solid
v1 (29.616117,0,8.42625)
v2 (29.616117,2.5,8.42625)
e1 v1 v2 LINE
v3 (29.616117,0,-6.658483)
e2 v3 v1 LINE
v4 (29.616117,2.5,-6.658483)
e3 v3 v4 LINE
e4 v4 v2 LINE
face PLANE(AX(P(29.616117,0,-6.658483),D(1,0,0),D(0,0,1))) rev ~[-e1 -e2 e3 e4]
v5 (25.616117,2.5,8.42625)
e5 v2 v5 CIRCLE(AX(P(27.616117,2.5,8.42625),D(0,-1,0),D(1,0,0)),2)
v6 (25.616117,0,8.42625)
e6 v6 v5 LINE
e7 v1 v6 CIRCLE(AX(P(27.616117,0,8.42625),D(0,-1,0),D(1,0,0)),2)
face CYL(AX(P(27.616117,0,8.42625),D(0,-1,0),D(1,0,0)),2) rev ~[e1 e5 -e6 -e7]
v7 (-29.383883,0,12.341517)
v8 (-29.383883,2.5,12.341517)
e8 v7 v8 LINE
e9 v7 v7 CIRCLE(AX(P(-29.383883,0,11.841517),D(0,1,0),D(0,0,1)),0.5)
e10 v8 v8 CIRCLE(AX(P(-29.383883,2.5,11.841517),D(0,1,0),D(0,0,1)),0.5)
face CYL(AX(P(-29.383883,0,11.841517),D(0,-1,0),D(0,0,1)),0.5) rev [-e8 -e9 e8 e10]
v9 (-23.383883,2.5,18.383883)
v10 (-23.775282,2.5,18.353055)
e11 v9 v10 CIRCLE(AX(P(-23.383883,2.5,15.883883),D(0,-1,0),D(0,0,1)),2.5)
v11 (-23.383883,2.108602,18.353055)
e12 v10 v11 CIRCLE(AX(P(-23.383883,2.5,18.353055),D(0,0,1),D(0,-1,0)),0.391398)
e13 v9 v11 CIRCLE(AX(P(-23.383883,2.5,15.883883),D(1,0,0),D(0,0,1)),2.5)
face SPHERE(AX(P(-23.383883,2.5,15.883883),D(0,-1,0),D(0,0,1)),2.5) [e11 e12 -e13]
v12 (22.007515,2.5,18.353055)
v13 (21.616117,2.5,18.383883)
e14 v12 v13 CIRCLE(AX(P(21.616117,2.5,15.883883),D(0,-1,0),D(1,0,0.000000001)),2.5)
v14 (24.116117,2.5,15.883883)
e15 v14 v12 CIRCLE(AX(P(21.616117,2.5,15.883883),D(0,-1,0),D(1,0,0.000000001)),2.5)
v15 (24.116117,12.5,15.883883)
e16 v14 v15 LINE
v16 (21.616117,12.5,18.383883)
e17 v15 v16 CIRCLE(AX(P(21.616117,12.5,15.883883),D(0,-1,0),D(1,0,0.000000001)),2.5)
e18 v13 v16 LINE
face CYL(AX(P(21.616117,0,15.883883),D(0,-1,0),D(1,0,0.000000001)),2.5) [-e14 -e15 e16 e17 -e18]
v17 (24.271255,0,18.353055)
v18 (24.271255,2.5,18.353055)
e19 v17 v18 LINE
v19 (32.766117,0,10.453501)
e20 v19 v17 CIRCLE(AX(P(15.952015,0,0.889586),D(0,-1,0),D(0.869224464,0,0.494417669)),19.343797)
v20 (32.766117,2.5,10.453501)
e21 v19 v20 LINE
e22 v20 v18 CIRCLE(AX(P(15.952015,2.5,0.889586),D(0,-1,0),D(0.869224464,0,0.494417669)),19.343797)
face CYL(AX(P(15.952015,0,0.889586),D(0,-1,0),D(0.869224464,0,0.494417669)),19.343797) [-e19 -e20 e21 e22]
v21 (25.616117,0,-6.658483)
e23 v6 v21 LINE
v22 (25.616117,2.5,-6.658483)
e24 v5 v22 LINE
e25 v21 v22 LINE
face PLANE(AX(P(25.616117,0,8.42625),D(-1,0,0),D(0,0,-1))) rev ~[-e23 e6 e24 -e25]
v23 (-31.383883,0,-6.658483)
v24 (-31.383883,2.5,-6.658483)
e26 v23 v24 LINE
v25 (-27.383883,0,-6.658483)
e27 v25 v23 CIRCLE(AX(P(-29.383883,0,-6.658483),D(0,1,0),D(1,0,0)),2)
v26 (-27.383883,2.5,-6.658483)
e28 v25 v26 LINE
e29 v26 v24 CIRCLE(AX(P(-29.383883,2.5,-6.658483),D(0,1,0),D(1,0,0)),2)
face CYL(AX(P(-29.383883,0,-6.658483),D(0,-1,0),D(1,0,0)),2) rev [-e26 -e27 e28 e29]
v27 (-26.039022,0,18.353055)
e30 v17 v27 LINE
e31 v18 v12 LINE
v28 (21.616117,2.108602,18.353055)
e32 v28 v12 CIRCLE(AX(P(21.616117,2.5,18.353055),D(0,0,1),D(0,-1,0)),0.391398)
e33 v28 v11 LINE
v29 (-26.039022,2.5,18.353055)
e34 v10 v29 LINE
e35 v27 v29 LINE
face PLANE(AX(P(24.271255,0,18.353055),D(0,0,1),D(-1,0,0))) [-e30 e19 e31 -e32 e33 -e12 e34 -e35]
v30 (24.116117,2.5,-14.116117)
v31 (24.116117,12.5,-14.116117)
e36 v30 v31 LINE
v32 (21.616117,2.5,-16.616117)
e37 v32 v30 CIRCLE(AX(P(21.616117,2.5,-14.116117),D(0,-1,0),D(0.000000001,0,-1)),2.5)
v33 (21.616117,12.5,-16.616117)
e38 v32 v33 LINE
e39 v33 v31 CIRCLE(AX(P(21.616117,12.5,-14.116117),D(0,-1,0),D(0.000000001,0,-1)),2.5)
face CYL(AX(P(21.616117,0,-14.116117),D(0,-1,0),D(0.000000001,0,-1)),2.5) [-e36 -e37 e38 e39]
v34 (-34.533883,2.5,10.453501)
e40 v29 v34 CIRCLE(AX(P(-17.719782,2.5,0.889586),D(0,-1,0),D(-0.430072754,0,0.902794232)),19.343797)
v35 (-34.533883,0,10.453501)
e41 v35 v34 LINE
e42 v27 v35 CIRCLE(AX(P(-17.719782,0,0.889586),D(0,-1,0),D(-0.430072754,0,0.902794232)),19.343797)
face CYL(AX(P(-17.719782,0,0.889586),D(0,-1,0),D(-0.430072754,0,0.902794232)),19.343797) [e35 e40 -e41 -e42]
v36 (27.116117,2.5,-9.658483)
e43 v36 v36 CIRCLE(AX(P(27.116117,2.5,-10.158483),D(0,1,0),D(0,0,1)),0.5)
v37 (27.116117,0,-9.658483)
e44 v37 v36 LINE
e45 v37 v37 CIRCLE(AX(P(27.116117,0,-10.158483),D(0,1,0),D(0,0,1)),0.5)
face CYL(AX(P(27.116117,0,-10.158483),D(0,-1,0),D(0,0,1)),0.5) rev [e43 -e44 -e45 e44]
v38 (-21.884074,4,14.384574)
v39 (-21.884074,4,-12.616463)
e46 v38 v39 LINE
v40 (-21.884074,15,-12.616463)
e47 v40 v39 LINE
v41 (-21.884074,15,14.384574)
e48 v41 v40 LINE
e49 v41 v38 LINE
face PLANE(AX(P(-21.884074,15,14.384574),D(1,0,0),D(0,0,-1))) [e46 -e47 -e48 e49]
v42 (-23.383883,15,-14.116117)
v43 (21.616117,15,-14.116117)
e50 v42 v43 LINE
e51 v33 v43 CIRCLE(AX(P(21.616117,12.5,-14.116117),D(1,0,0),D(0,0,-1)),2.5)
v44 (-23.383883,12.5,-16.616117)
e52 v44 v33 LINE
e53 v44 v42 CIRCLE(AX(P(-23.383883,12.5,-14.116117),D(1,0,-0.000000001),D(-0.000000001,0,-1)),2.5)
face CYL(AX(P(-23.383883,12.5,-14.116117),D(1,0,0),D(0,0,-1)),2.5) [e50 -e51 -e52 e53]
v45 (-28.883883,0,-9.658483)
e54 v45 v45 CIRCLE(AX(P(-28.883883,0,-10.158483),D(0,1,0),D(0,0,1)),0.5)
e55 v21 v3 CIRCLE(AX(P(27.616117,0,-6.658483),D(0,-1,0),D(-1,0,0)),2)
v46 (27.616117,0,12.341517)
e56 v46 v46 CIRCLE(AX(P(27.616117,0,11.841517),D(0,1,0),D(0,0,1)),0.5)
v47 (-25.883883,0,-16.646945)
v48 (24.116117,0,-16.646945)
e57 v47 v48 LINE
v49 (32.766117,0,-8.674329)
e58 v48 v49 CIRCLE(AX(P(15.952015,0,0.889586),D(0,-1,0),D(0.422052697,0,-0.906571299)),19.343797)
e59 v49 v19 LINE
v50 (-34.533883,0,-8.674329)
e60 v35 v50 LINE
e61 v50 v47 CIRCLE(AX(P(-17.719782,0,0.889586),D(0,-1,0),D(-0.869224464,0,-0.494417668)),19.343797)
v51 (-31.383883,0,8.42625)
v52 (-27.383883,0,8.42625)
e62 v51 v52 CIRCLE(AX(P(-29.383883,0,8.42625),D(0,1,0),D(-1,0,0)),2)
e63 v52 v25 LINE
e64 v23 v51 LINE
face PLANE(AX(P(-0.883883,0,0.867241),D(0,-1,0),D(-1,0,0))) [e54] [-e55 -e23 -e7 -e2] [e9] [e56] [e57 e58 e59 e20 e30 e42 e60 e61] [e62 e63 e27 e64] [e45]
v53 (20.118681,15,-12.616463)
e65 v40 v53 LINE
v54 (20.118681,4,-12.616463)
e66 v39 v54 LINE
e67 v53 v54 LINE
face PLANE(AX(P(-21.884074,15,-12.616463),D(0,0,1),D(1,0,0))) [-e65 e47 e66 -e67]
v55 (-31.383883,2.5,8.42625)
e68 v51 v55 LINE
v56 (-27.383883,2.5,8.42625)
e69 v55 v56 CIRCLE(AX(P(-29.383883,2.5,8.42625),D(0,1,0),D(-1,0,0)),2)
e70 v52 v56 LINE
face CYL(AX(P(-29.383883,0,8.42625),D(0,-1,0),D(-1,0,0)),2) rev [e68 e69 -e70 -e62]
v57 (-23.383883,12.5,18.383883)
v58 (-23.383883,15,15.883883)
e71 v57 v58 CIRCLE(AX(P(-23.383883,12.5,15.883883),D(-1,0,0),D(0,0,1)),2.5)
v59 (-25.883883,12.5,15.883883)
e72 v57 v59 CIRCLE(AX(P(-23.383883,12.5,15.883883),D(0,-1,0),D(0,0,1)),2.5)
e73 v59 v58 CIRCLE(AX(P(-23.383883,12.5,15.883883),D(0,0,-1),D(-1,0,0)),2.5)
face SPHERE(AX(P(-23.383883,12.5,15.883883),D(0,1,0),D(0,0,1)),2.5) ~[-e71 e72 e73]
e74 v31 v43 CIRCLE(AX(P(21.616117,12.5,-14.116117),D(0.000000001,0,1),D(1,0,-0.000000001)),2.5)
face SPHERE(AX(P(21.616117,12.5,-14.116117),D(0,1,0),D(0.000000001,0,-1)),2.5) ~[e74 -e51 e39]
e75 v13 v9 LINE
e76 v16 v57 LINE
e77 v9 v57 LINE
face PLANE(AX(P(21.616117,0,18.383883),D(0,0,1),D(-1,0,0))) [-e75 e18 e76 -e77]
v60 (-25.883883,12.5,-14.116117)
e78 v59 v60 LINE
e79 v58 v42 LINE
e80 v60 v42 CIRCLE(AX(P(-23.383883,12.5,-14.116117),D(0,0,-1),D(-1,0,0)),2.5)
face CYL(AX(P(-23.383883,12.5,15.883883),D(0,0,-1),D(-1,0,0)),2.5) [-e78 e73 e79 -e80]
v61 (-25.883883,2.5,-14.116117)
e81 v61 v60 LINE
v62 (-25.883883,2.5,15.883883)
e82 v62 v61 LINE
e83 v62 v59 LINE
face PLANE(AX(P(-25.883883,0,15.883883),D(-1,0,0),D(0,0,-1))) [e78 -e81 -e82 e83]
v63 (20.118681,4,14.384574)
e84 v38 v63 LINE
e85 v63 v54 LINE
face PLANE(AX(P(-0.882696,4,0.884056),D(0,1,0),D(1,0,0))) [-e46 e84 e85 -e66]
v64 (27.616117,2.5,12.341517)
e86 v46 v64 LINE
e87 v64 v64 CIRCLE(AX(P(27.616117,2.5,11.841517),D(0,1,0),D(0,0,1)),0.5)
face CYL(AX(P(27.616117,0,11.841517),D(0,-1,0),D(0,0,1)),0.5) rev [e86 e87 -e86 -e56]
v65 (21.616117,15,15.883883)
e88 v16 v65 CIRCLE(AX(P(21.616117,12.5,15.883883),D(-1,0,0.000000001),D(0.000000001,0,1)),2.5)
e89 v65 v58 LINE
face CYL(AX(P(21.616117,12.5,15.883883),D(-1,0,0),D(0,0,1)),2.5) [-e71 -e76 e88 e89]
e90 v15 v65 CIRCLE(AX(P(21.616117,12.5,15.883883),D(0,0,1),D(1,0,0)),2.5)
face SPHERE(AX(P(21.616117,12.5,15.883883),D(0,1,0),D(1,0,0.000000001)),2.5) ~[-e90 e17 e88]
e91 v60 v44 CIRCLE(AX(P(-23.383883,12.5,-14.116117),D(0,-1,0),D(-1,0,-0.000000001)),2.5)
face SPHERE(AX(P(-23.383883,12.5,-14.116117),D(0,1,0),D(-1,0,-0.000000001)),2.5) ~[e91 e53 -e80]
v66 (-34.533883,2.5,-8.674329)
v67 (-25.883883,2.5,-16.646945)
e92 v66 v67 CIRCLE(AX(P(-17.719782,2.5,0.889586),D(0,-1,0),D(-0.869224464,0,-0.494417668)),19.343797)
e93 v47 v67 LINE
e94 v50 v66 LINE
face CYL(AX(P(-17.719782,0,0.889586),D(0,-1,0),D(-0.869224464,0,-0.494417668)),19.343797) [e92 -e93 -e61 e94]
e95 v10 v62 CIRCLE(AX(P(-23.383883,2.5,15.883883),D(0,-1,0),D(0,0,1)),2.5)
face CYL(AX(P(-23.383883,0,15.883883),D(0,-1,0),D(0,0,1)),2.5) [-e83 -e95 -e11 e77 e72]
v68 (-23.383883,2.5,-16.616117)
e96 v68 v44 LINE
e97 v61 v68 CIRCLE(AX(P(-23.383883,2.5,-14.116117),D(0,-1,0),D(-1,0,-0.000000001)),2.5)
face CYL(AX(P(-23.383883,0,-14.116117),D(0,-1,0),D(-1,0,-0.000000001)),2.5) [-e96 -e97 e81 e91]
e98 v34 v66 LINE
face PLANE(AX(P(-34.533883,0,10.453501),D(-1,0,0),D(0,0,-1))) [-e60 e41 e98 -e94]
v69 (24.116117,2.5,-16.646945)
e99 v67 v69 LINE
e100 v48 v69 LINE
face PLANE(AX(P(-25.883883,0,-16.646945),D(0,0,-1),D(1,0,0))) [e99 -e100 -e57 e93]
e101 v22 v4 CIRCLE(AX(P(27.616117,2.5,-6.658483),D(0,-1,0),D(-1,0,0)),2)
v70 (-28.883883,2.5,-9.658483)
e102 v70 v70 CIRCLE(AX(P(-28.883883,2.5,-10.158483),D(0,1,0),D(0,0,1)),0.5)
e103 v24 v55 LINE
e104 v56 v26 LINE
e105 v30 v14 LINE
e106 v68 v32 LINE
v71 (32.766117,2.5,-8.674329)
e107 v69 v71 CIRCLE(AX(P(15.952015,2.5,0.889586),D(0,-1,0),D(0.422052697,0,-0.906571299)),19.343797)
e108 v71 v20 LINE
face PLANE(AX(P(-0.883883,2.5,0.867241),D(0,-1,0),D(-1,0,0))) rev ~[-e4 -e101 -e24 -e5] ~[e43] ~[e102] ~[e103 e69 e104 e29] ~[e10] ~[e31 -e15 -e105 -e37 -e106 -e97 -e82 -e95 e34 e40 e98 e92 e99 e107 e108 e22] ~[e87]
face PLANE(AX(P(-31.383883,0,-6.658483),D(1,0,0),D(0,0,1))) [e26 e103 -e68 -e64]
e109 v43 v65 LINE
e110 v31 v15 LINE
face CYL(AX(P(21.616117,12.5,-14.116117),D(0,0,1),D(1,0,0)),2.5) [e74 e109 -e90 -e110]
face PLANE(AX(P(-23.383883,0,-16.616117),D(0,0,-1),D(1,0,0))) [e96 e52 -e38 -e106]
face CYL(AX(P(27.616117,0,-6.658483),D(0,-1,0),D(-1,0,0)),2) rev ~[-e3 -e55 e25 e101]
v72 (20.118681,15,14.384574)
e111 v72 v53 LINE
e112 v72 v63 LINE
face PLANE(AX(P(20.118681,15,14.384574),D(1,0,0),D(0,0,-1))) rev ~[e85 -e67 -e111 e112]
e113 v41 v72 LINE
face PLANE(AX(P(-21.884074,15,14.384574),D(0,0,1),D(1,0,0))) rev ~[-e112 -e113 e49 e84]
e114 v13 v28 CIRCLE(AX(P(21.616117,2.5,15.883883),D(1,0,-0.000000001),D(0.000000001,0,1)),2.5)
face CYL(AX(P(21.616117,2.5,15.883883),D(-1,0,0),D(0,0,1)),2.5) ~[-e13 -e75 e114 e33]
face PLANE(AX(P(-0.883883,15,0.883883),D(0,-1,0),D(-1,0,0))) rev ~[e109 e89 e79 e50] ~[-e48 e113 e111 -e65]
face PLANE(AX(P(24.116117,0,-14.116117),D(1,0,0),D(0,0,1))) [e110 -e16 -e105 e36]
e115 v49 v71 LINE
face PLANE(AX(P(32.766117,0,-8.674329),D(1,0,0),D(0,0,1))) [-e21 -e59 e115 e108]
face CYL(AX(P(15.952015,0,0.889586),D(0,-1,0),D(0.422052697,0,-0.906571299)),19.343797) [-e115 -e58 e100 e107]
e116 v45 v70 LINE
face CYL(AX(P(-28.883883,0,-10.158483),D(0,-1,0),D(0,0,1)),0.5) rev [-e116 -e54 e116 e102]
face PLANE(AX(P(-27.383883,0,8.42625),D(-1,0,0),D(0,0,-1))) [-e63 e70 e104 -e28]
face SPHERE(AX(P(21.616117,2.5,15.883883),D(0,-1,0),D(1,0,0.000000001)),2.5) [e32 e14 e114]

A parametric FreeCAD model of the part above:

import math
import FreeCAD as App
import Part
import Sketcher
from FreeCAD import Vector


def edges_at(feature, points):
    """Names of the edges that pass closest to the given points."""
    edges = feature.Shape.Edges
    near = lambda p: min(range(len(edges)), key=lambda i: edges[i].distToShape(Part.Vertex(*p))[0])
    return sorted({f"Edge{near(p) + 1}" for p in points})

doc = App.newDocument("Part")
params = doc.addObject("Spreadsheet::Sheet", "Params")
for row, (alias, value) in enumerate([
    ("sketch1_radius", "2.5 mm"),
    ("sketch1_width", "45 mm"),
    ("sketch1_height", "30 mm"),
    ("pad1_length", "15 mm"),
    ("fillet_radius", "2.5 mm"),
    ("sketch2_diameter", "1 mm"),
    ("sketch2_radius", "2 mm"),
    ("sketch2_width", "50 mm"),
    ("pad2_length", "2.5 mm"),
    ("pocket1_length", "11 mm"),
], start=1):
    params.set(f"A{row}", alias)
    params.set(f"B{row}", "=" + value)
    params.setAlias(f"B{row}", alias)

body = doc.addObject("PartDesign::Body", "Body")

sketch1 = doc.addObject("Sketcher::SketchObject", "Sketch")
body.addObject(sketch1)
sketch1.AttachmentSupport = (doc.XZ_Plane, [""])
sketch1.MapMode = "FlatFace"
sketch1.addGeometry([
    Part.LineSegment(Vector(21.6, -16.6, 0), Vector(-23.4, -16.6, 0)),
    Part.ArcOfCircle(Part.Circle(Vector(-23.4, -14.1, 0), Vector(0, 0, 1), 2.5), math.radians(-180), math.radians(-90)),
    Part.LineSegment(Vector(-25.9, -14.1, 0), Vector(-25.9, 15.9, 0)),
    Part.ArcOfCircle(Part.Circle(Vector(-23.4, 15.9, 0), Vector(0, 0, 1), 2.5), math.radians(90), math.radians(180)),
    Part.LineSegment(Vector(-23.4, 18.4, 0), Vector(21.6, 18.4, 0)),
    Part.ArcOfCircle(Part.Circle(Vector(21.6, 15.9, 0), Vector(0, 0, 1), 2.5), math.radians(0), math.radians(90)),
    Part.LineSegment(Vector(24.1, 15.9, 0), Vector(24.1, -14.1, 0)),
    Part.ArcOfCircle(Part.Circle(Vector(21.6, -14.1, 0), Vector(0, 0, 1), 2.5), math.radians(-90), math.radians(0)),
], False)
sketch1.addConstraint([
    Sketcher.Constraint("Tangent", 0, 2, 1, 2),
    Sketcher.Constraint("Tangent", 1, 1, 2, 1),
    Sketcher.Constraint("Tangent", 2, 2, 3, 2),
    Sketcher.Constraint("Tangent", 3, 1, 4, 1),
    Sketcher.Constraint("Tangent", 4, 2, 5, 2),
    Sketcher.Constraint("Tangent", 5, 1, 6, 1),
    Sketcher.Constraint("Tangent", 6, 2, 7, 2),
    Sketcher.Constraint("Tangent", 7, 1, 0, 1),
    Sketcher.Constraint("Horizontal", 0),
    Sketcher.Constraint("Vertical", 2),
    Sketcher.Constraint("Horizontal", 4),
    Sketcher.Constraint("Vertical", 6),
    Sketcher.Constraint("Equal", 1, 3),
    Sketcher.Constraint("Equal", 3, 5),
    Sketcher.Constraint("Equal", 5, 7),
    Sketcher.Constraint("Radius", 1, 2.5),
    Sketcher.Constraint("DistanceX", 0, 2, 0, 1, 45.0),
    Sketcher.Constraint("DistanceY", 2, 1, 2, 2, 30.0),
    Sketcher.Constraint("DistanceX", 1, 3, -1, 1, 23.383883),
    Sketcher.Constraint("DistanceY", 1, 3, -1, 1, 14.116117),
])
sketch1.setExpression("Constraints[15]", "Params.sketch1_radius")
sketch1.setExpression("Constraints[16]", "Params.sketch1_width")
sketch1.setExpression("Constraints[17]", "Params.sketch1_height")
pad1 = doc.addObject("PartDesign::Pad", "Pad")
body.addObject(pad1)
pad1.Profile = sketch1
pad1.setExpression("Length", "Params.pad1_length")
pad1.Reversed = True
doc.recompute()

fillet = doc.addObject("PartDesign::Fillet", "Fillet")
body.addObject(fillet)
fillet.Base = (pad1, edges_at(pad1, [
    (-25.152, 15, 17.652),
    (-25.884, 0, 0.884),
    (-25.152, 0, -15.884),
    (-0.884, 15, 18.384),
    (23.384, 15, 17.652),
    (24.116, 15, 0.884),
    (23.384, 15, -15.884),
    (-0.884, 15, -16.616),
    (-25.152, 15, -15.884),
    (-25.884, 15, 0.884),
    (-0.884, 0, -16.616),
    (23.384, 0, -15.884),
    (24.116, 0, 0.884),
    (23.384, 0, 17.652),
    (-0.884, 0, 18.384),
    (-25.152, 0, 17.652),
]))
fillet.setExpression("Radius", "Params.fillet_radius")

sketch2 = doc.addObject("Sketcher::SketchObject", "Sketch001")
body.addObject(sketch2)
sketch2.AttachmentSupport = (doc.XZ_Plane, [""])
sketch2.MapMode = "FlatFace"
sketch2.addGeometry([
    Part.LineSegment(Vector(24.1, -16.6, 0), Vector(-25.9, -16.6, 0)),
    Part.ArcOfCircle(Part.Circle(Vector(-17.7, 0.9, 0), Vector(0, 0, 1), 19.3), math.radians(-150), math.radians(-115)),
    Part.LineSegment(Vector(-34.5, -8.7, 0), Vector(-34.5, 10.5, 0)),
    Part.ArcOfCircle(Part.Circle(Vector(-17.7, 0.9, 0), Vector(0, 0, 1), 19.3), math.radians(115), math.radians(150)),
    Part.LineSegment(Vector(-26, 18.4, 0), Vector(24.3, 18.4, 0)),
    Part.ArcOfCircle(Part.Circle(Vector(16, 0.9, 0), Vector(0, 0, 1), 19.3), math.radians(30), math.radians(65)),
    Part.LineSegment(Vector(32.8, 10.5, 0), Vector(32.8, -8.7, 0)),
    Part.ArcOfCircle(Part.Circle(Vector(16, 0.9, 0), Vector(0, 0, 1), 19.3), math.radians(-65), math.radians(-30)),
    Part.Circle(Vector(27.6, 11.8, 0), Vector(0, 0, 1), 0.5),
    Part.LineSegment(Vector(29.6, -6.7, 0), Vector(29.6, 8.4, 0)),
    Part.ArcOfCircle(Part.Circle(Vector(27.6, 8.4, 0), Vector(0, 0, 1), 2), math.radians(0), math.radians(180)),
    Part.LineSegment(Vector(25.6, 8.4, 0), Vector(25.6, -6.7, 0)),
    Part.ArcOfCircle(Part.Circle(Vector(27.6, -6.7, 0), Vector(0, 0, 1), 2), math.radians(180), math.radians(360)),
    Part.Circle(Vector(-29.4, 11.8, 0), Vector(0, 0, 1), 0.5),
    Part.ArcOfCircle(Part.Circle(Vector(-29.4, -6.7, 0), Vector(0, 0, 1), 2), math.radians(180), math.radians(360)),
    Part.LineSegment(Vector(-27.4, -6.7, 0), Vector(-27.4, 8.4, 0)),
    Part.ArcOfCircle(Part.Circle(Vector(-29.4, 8.4, 0), Vector(0, 0, 1), 2), math.radians(0), math.radians(180)),
    Part.LineSegment(Vector(-31.4, 8.4, 0), Vector(-31.4, -6.7, 0)),
    Part.Circle(Vector(27.1, -10.2, 0), Vector(0, 0, 1), 0.5),
    Part.Circle(Vector(-28.9, -10.2, 0), Vector(0, 0, 1), 0.5),
], False)
sketch2.addConstraint([
    Sketcher.Constraint("Coincident", 0, 2, 1, 2),
    Sketcher.Constraint("Coincident", 1, 1, 2, 1),
    Sketcher.Constraint("Coincident", 2, 2, 3, 2),
    Sketcher.Constraint("Coincident", 3, 1, 4, 1),
    Sketcher.Constraint("Coincident", 4, 2, 5, 2),
    Sketcher.Constraint("Coincident", 5, 1, 6, 1),
    Sketcher.Constraint("Coincident", 6, 2, 7, 2),
    Sketcher.Constraint("Coincident", 7, 1, 0, 1),
    Sketcher.Constraint("Tangent", 9, 2, 10, 1),
    Sketcher.Constraint("Tangent", 10, 2, 11, 1),
    Sketcher.Constraint("Tangent", 11, 2, 12, 1),
    Sketcher.Constraint("Tangent", 12, 2, 9, 1),
    Sketcher.Constraint("Tangent", 14, 2, 15, 1),
    Sketcher.Constraint("Tangent", 15, 2, 16, 1),
    Sketcher.Constraint("Tangent", 16, 2, 17, 1),
    Sketcher.Constraint("Tangent", 17, 2, 14, 1),
    Sketcher.Constraint("Horizontal", 0),
    Sketcher.Constraint("Vertical", 2),
    Sketcher.Constraint("Horizontal", 4),
    Sketcher.Constraint("Vertical", 6),
    Sketcher.Constraint("Vertical", 9),
    Sketcher.Constraint("Vertical", 11),
    Sketcher.Constraint("Vertical", 15),
    Sketcher.Constraint("Vertical", 17),
    Sketcher.Constraint("Coincident", 3, 3, 1, 3),
    Sketcher.Constraint("Coincident", 7, 3, 5, 3),
    Sketcher.Constraint("Equal", 1, 3),
    Sketcher.Constraint("Equal", 3, 5),
    Sketcher.Constraint("Equal", 5, 7),
    Sketcher.Constraint("Equal", 8, 13),
    Sketcher.Constraint("Equal", 12, 14),
    Sketcher.Constraint("Equal", 13, 18),
    Sketcher.Constraint("Equal", 18, 19),
    Sketcher.Constraint("Horizontal", 3, 3, 5, 3),
    Sketcher.Constraint("Horizontal", 8, 3, 13, 3),
    Sketcher.Constraint("Horizontal", 12, 3, 14, 3),
    Sketcher.Constraint("Horizontal", 10, 3, 16, 3),
    Sketcher.Constraint("Horizontal", 18, 3, 19, 3),
    Sketcher.Constraint("Horizontal", 2, 2, 5, 1),
    Sketcher.Constraint("Vertical", 8, 3, 10, 3),
    Sketcher.Constraint("Vertical", 13, 3, 14, 3),
    Sketcher.Constraint("Diameter", 8, 1.0),
    Sketcher.Constraint("Radius", 10, 2.0),
    Sketcher.Constraint("DistanceX", 0, 2, 0, 1, 50.0),
    Sketcher.Constraint("DistanceX", 13, 3, 8, 3, 57.0),
    Sketcher.Constraint("DistanceY", 18, 3, 8, 3, 22.0),
    Sketcher.Constraint("DistanceX", 19, 3, 0, 2, 3.0),
    Sketcher.Constraint("DistanceX", 7, 1, 18, 3, 3.0),
    Sketcher.Constraint("DistanceY", 12, 3, 8, 3, 18.5),
    Sketcher.Constraint("DistanceX", 18, 3, 12, 3, 0.5),
    Sketcher.Constraint("DistanceX", 1, 1, 14, 3, 5.15),
    Sketcher.Constraint("Radius", 1, 19.343797),
    Sketcher.Constraint("DistanceY", 2, 1, 2, 2, 19.12783),
    Sketcher.Constraint("DistanceY", -1, 1, 2, 2, 10.453501),
    Sketcher.Constraint("DistanceX", 4, 1, 4, 2, 50.310277),
    Sketcher.Constraint("DistanceY", 9, 1, 9, 2, 15.084734),
    Sketcher.Constraint("DistanceX", 1, 3, -1, 1, 17.719782),
    Sketcher.Constraint("DistanceY", -1, 1, 10, 3, 8.42625),
])
sketch2.setExpression("Constraints[41]", "Params.sketch2_diameter")
sketch2.setExpression("Constraints[42]", "Params.sketch2_radius")
sketch2.setExpression("Constraints[43]", "Params.sketch2_width")
pad2 = doc.addObject("PartDesign::Pad", "Pad001")
body.addObject(pad2)
pad2.Profile = sketch2
pad2.setExpression("Length", "Params.pad2_length")
pad2.Reversed = True

sketch3 = doc.addObject("Sketcher::SketchObject", "Sketch002")
body.addObject(sketch3)
sketch3.AttachmentSupport = (doc.XZ_Plane, [""])
sketch3.MapMode = "FlatFace"
sketch3.AttachmentOffset = App.Placement(Vector(0, 0, -15), App.Rotation())
sketch3.addGeometry([
    Part.LineSegment(Vector(-22, -13, 0), Vector(-22, 14, 0)),
    Part.LineSegment(Vector(-22, 14, 0), Vector(20, 14, 0)),
    Part.LineSegment(Vector(20, 14, 0), Vector(20, -13, 0)),
    Part.LineSegment(Vector(20, -13, 0), Vector(-22, -13, 0)),
], False)
sketch3.addConstraint([
    Sketcher.Constraint("Coincident", 0, 2, 1, 1),
    Sketcher.Constraint("Coincident", 1, 2, 2, 1),
    Sketcher.Constraint("Coincident", 2, 2, 3, 1),
    Sketcher.Constraint("Coincident", 3, 2, 0, 1),
    Sketcher.Constraint("Vertical", 0),
    Sketcher.Constraint("Horizontal", 1),
    Sketcher.Constraint("Vertical", 2),
    Sketcher.Constraint("Horizontal", 3),
    Sketcher.Constraint("DistanceX", 1, 1, 1, 2, 42.002755),
    Sketcher.Constraint("DistanceY", 0, 1, 0, 2, 27.001037),
    Sketcher.Constraint("DistanceX", -1, 1, 1, 2, 20.118681),
    Sketcher.Constraint("DistanceY", -1, 1, 0, 2, 14.384574),
])
pocket1 = doc.addObject("PartDesign::Pocket", "Pocket")
body.addObject(pocket1)
pocket1.Profile = sketch3
pocket1.setExpression("Length", "Params.pocket1_length")
pocket1.Reversed = True

doc.recompute()
